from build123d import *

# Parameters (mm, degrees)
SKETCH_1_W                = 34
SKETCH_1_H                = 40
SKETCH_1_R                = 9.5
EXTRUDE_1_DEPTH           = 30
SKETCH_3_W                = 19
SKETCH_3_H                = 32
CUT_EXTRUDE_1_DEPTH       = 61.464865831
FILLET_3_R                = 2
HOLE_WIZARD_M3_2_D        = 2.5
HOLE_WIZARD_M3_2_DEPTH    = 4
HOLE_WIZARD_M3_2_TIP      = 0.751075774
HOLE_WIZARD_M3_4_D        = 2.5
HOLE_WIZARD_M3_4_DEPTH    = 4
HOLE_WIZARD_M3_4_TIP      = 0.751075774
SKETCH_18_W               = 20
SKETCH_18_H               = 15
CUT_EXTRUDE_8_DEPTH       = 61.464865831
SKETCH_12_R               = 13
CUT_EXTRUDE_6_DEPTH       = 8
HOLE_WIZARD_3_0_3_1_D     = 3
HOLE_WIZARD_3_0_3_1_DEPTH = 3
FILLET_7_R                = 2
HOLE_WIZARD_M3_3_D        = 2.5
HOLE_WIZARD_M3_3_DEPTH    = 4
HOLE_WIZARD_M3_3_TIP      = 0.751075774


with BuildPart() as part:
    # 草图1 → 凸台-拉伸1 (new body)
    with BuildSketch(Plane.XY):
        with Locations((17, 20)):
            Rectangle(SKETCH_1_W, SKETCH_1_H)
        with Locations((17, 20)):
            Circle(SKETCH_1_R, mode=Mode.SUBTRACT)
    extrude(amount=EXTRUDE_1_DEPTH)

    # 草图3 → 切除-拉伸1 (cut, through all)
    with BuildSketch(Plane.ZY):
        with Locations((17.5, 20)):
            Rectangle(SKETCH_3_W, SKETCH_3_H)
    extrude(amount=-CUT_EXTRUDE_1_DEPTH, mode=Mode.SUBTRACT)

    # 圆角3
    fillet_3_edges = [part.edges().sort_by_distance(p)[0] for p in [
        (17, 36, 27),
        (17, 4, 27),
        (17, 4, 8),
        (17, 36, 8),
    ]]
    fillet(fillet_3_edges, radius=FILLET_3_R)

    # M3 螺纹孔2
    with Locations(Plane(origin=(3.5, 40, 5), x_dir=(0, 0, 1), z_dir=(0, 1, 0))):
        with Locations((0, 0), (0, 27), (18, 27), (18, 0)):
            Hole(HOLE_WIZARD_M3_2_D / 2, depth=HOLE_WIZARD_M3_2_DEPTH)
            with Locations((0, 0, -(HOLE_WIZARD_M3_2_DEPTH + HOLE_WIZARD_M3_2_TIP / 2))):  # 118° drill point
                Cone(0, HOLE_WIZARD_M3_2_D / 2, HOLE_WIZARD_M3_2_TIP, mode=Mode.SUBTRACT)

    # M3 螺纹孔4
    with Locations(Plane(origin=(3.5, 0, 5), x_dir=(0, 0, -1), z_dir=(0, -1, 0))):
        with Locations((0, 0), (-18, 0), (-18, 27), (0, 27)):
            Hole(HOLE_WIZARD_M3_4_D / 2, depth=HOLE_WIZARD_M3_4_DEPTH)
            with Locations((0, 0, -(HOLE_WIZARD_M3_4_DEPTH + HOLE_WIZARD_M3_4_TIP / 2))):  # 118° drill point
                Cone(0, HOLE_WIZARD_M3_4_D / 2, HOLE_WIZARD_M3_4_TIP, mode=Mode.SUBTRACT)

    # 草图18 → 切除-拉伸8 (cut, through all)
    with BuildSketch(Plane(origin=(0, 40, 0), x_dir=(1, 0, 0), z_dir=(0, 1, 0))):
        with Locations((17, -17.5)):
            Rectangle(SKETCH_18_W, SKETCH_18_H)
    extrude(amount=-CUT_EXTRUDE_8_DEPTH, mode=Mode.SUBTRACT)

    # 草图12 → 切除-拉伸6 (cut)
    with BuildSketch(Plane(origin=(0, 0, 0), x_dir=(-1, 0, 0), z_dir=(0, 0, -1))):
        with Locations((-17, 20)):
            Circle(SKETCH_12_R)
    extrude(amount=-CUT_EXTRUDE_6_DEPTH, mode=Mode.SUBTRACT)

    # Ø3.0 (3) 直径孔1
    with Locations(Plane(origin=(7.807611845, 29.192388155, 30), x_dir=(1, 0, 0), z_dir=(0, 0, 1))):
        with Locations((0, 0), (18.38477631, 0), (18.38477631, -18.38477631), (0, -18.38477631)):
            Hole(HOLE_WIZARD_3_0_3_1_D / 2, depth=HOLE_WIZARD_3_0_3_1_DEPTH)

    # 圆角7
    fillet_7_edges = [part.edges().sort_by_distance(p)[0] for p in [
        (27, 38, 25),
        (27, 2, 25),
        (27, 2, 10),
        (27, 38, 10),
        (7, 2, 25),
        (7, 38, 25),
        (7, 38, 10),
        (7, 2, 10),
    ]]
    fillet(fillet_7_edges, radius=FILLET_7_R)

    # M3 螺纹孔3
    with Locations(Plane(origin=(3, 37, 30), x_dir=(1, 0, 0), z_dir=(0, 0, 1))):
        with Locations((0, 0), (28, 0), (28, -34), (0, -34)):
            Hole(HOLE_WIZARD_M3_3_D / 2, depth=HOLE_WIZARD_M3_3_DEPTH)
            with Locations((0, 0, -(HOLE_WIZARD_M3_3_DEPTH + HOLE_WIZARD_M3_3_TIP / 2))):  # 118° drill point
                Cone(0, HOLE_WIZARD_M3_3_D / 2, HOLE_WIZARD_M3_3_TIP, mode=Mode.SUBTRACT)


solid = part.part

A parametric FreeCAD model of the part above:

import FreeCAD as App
import Part
import Sketcher

V = App.Vector
Q = App.Units.Quantity


def edges_at(feature, points):
    """Names of the edges that pass closest to the given points."""
    edges = feature.Shape.Edges
    near = lambda p: min(range(len(edges)), key=lambda i: edges[i].distToShape(Part.Vertex(*p))[0])
    return sorted({f"Edge{near(p) + 1}" for p in points})

doc = App.newDocument("Part")
body = doc.addObject("PartDesign::Body", "Body")

sketch1 = doc.addObject("Sketcher::SketchObject", "Sketch")
body.addObject(sketch1)
sketch1.AttachmentSupport = (doc.XY_Plane, [""])
sketch1.MapMode = "FlatFace"
sketch1.addGeometry([
    Part.LineSegment(V(0, 40, 0), V(0, 0, 0)),
    Part.LineSegment(V(0, 0, 0), V(34, 0, 0)),
    Part.LineSegment(V(34, 0, 0), V(34, 40, 0)),
    Part.LineSegment(V(34, 40, 0), V(0, 40, 0)),
    Part.Circle(V(17, 20, 0), V(0, 0, 1), 10),
], False)
sketch1.addConstraint([
    Sketcher.Constraint("Coincident", 0, 2, 1, 1),
    Sketcher.Constraint("Coincident", 1, 2, 2, 1),
    Sketcher.Constraint("Coincident", 2, 2, 3, 1),
    Sketcher.Constraint("Coincident", 3, 2, 0, 1),
    Sketcher.Constraint("Vertical", 0),
    Sketcher.Constraint("Horizontal", 1),
    Sketcher.Constraint("Vertical", 2),
    Sketcher.Constraint("Horizontal", 3),
    Sketcher.Constraint("Coincident", 0, 2, -1, 1),
    Sketcher.Constraint("Diameter", 4, Q("19 mm")),
    Sketcher.Constraint("DistanceX", 1, 1, 1, 2, Q("34 mm")),
    Sketcher.Constraint("DistanceY", 0, 2, 0, 1, Q("40 mm")),
    Sketcher.Constraint("DistanceX", -1, 1, 4, 3, Q("17 mm")),
    Sketcher.Constraint("DistanceY", -1, 1, 4, 3, Q("20 mm")),
])
pad1 = doc.addObject("PartDesign::Pad", "Pad")
body.addObject(pad1)
pad1.Profile = sketch1
pad1.Length = 30

sketch2 = doc.addObject("Sketcher::SketchObject", "Sketch001")
body.addObject(sketch2)
sketch2.AttachmentSupport = (doc.YZ_Plane, [""])
sketch2.MapMode = "FlatFace"
sketch2.addGeometry([
    Part.LineSegment(V(36, 8, 0), V(4, 8, 0)),
    Part.LineSegment(V(4, 8, 0), V(4, 27, 0)),
    Part.LineSegment(V(4, 27, 0), V(36, 27, 0)),
    Part.LineSegment(V(36, 27, 0), V(36, 8, 0)),
], False)
sketch2.addConstraint([
    Sketcher.Constraint("Coincident", 0, 2, 1, 1),
    Sketcher.Constraint("Coincident", 1, 2, 2, 1),
    Sketcher.Constraint("Coincident", 2, 2, 3, 1),
    Sketcher.Constraint("Coincident", 3, 2, 0, 1),
    Sketcher.Constraint("Horizontal", 0),
    Sketcher.Constraint("Vertical", 1),
    Sketcher.Constraint("Horizontal", 2),
    Sketcher.Constraint("Vertical", 3),
    Sketcher.Constraint("DistanceX", 0, 2, 0, 1, Q("32 mm")),
    Sketcher.Constraint("DistanceY", 1, 1, 1, 2, Q("19 mm")),
    Sketcher.Constraint("DistanceX", -1, 1, 0, 2, Q("4 mm")),
    Sketcher.Constraint("DistanceY", -1, 1, 0, 2, Q("8 mm")),
])
pocket1 = doc.addObject("PartDesign::Pocket", "Pocket")
body.addObject(pocket1)
pocket1.Profile = sketch2
pocket1.Type = "ThroughAll"
pocket1.Reversed = True
doc.recompute()

fillet = doc.addObject("PartDesign::Fillet", "Fillet")
body.addObject(fillet)
fillet.Base = (pocket1, edges_at(pocket1, [
    (17, 36, 27),
    (17, 4, 27),
    (17, 4, 8),
    (17, 36, 8),
]))
fillet.Radius = 2

sketch3 = doc.addObject("Sketcher::SketchObject", "Sketch002")
body.addObject(sketch3)
sketch3.AttachmentSupport = (doc.XZ_Plane, [""])
sketch3.MapMode = "FlatFace"
sketch3.AttachmentOffset = App.Placement(V(0, 0, -40), App.Rotation())
sketch3.addGeometry([
    Part.Circle(V(3.5, 5, 0), V(0, 0, 1), 1.2),
    Part.Circle(V(30.5, 5, 0), V(0, 0, 1), 1.2),
    Part.Circle(V(30.5, 23, 0), V(0, 0, 1), 1.2),
    Part.Circle(V(3.5, 23, 0), V(0, 0, 1), 1.2),
], False)
sketch3.addConstraint([
    Sketcher.Constraint("Equal", 0, 1),
    Sketcher.Constraint("Equal", 1, 2),
    Sketcher.Constraint("Equal", 2, 3),
    Sketcher.Constraint("Horizontal", 0, 3, 1, 3),
    Sketcher.Constraint("Horizontal", 2, 3, 3, 3),
    Sketcher.Constraint("Vertical", 1, 3, 2, 3),
    Sketcher.Constraint("Vertical", 0, 3, 3, 3),
    Sketcher.Constraint("Diameter", 0, Q("2.5 mm")),
    Sketcher.Constraint("DistanceY", -1, 1, 0, 3, Q("5 mm")),
    Sketcher.Constraint("DistanceY", -1, 1, 2, 3, Q("23 mm")),
    Sketcher.Constraint("DistanceX", 0, 3, 1, 3, Q("27 mm")),
    Sketcher.Constraint("DistanceX", -1, 1, 0, 3, Q("3.5 mm")),
])
doc.recompute()
hole = doc.addObject("PartDesign::Hole", "Hole")
body.addObject(hole)
hole.Profile = sketch3
hole.ThreadType = "None"
hole.Diameter = 2.5
hole.DepthType = "Dimension"
hole.Depth = 4
hole.DrillPoint = "Angled"
hole.DrillPointAngle = 118
hole.Reversed = True

sketch4 = doc.addObject("Sketcher::SketchObject", "Sketch003")
body.addObject(sketch4)
sketch4.AttachmentSupport = (doc.XZ_Plane, [""])
sketch4.MapMode = "FlatFace"
sketch4.addGeometry([
    Part.Circle(V(3.5, 5, 0), V(0, 0, 1), 1.2),
    Part.Circle(V(3.5, 23, 0), V(0, 0, 1), 1.2),
    Part.Circle(V(30.5, 23, 0), V(0, 0, 1), 1.2),
    Part.Circle(V(30.5, 5, 0), V(0, 0, 1), 1.2),
], False)
sketch4.addConstraint([
    Sketcher.Constraint("Equal", 0, 1),
    Sketcher.Constraint("Equal", 1, 2),
    Sketcher.Constraint("Equal", 2, 3),
    Sketcher.Constraint("Horizontal", 1, 3, 2, 3),
    Sketcher.Constraint("Horizontal", 0, 3, 3, 3),
    Sketcher.Constraint("Vertical", 0, 3, 1, 3),
    Sketcher.Constraint("Vertical", 2, 3, 3, 3),
    Sketcher.Constraint("Diameter", 0, Q("2.5 mm")),
    Sketcher.Constraint("DistanceY", -1, 1, 0, 3, Q("5 mm")),
    Sketcher.Constraint("DistanceY", -1, 1, 1, 3, Q("23 mm")),
    Sketcher.Constraint("DistanceX", 1, 3, 2, 3, Q("27 mm")),
    Sketcher.Constraint("DistanceX", -1, 1, 0, 3, Q("3.5 mm")),
])
doc.recompute()
hole2 = doc.addObject("PartDesign::Hole", "Hole001")
body.addObject(hole2)
hole2.Profile = sketch4
hole2.ThreadType = "None"
hole2.Diameter = 2.5
hole2.DepthType = "Dimension"
hole2.Depth = 4
hole2.DrillPoint = "Angled"
hole2.DrillPointAngle = 118

sketch5 = doc.addObject("Sketcher::SketchObject", "Sketch004")
body.addObject(sketch5)
sketch5.AttachmentSupport = (doc.XZ_Plane, [""])
sketch5.MapMode = "FlatFace"
sketch5.AttachmentOffset = App.Placement(V(0, 0, -40), App.Rotation())
sketch5.addGeometry([
    Part.LineSegment(V(7, 10, 0), V(7, 25, 0)),
    Part.LineSegment(V(7, 25, 0), V(27, 25, 0)),
    Part.LineSegment(V(27, 25, 0), V(27, 10, 0)),
    Part.LineSegment(V(27, 10, 0), V(7, 10, 0)),
], False)
sketch5.addConstraint([
    Sketcher.Constraint("Coincident", 0, 2, 1, 1),
    Sketcher.Constraint("Coincident", 1, 2, 2, 1),
    Sketcher.Constraint("Coincident", 2, 2, 3, 1),
    Sketcher.Constraint("Coincident", 3, 2, 0, 1),
    Sketcher.Constraint("Vertical", 0),
    Sketcher.Constraint("Horizontal", 1),
    Sketcher.Constraint("Vertical", 2),
    Sketcher.Constraint("Horizontal", 3),
    Sketcher.Constraint("DistanceX", 1, 1, 1, 2, Q("20 mm")),
    Sketcher.Constraint("DistanceY", 0, 1, 0, 2, Q("15 mm")),
    Sketcher.Constraint("DistanceX", -1, 1, 0, 2, Q("7 mm")),
    Sketcher.Constraint("DistanceY", -1, 1, 0, 2, Q("25 mm")),
])
pocket2 = doc.addObject("PartDesign::Pocket", "Pocket001")
body.addObject(pocket2)
pocket2.Profile = sketch5
pocket2.Type = "ThroughAll"
pocket2.Reversed = True

sketch6 = doc.addObject("Sketcher::SketchObject", "Sketch005")
body.addObject(sketch6)
sketch6.AttachmentSupport = (doc.XY_Plane, [""])
sketch6.MapMode = "FlatFace"
sketch6.addGeometry(Part.Circle(V(17, 20, 0), V(0, 0, 1), 13), False)
sketch6.addConstraint([
    Sketcher.Constraint("Diameter", 0, Q("26 mm")),
    Sketcher.Constraint("DistanceX", -1, 1, 0, 3, Q("17 mm")),
    Sketcher.Constraint("DistanceY", -1, 1, 0, 3, Q("20 mm")),
])
pocket3 = doc.addObject("PartDesign::Pocket", "Pocket002")
body.addObject(pocket3)
pocket3.Profile = sketch6
pocket3.Length = 8
pocket3.Reversed = True

sketch7 = doc.addObject("Sketcher::SketchObject", "Sketch006")
body.addObject(sketch7)
sketch7.AttachmentSupport = (doc.XY_Plane, [""])
sketch7.MapMode = "FlatFace"
sketch7.AttachmentOffset = App.Placement(V(0, 0, 30), App.Rotation())
sketch7.addGeometry([
    Part.Circle(V(7.8, 29.2, 0), V(0, 0, 1), 1.5),
    Part.Circle(V(26.2, 29.2, 0), V(0, 0, 1), 1.5),
    Part.Circle(V(26.2, 10.8, 0), V(0, 0, 1), 1.5),
    Part.Circle(V(7.8, 10.8, 0), V(0, 0, 1), 1.5),
], False)
sketch7.addConstraint([
    Sketcher.Constraint("Equal", 0, 1),
    Sketcher.Constraint("Equal", 1, 2),
    Sketcher.Constraint("Equal", 2, 3),
    Sketcher.Constraint("Horizontal", 0, 3, 1, 3),
    Sketcher.Constraint("Horizontal", 2, 3, 3, 3),
    Sketcher.Constraint("Vertical", 1, 3, 2, 3),
    Sketcher.Constraint("Vertical", 0, 3, 3, 3),
    Sketcher.Constraint("Diameter", 0, Q("3 mm")),
    Sketcher.Constraint("DistanceX", -1, 1, 0, 3, Q("7.807612 mm")),
    Sketcher.Constraint("DistanceY", -1, 1, 0, 3, Q("29.192388 mm")),
    Sketcher.Constraint("DistanceX", -1, 1, 1, 3, Q("26.192388 mm")),
    Sketcher.Constraint("DistanceY", -1, 1, 2, 3, Q("10.807612 mm")),
])
doc.recompute()
hole3 = doc.addObject("PartDesign::Hole", "Hole002")
body.addObject(hole3)
hole3.Profile = sketch7
hole3.ThreadType = "None"
hole3.Diameter = 3
hole3.DepthType = "Dimension"
hole3.Depth = 3
hole3.DrillPoint = "Flat"
doc.recompute()

fillet2 = doc.addObject("PartDesign::Fillet", "Fillet001")
body.addObject(fillet2)
fillet2.Base = (hole3, edges_at(hole3, [
    (27, 38, 25),
    (27, 2, 25),
    (27, 2, 10),
    (27, 38, 10),
    (7, 2, 25),
    (7, 38, 25),
    (7, 38, 10),
    (7, 2, 10),
]))
fillet2.Radius = 2

sketch8 = doc.addObject("Sketcher::SketchObject", "Sketch007")
body.addObject(sketch8)
sketch8.AttachmentSupport = (doc.XY_Plane, [""])
sketch8.MapMode = "FlatFace"
sketch8.AttachmentOffset = App.Placement(V(0, 0, 30), App.Rotation())
sketch8.addGeometry([
    Part.Circle(V(3, 37, 0), V(0, 0, 1), 1.2),
    Part.Circle(V(31, 37, 0), V(0, 0, 1), 1.2),
    Part.Circle(V(31, 3, 0), V(0, 0, 1), 1.2),
    Part.Circle(V(3, 3, 0), V(0, 0, 1), 1.2),
], False)
sketch8.addConstraint([
    Sketcher.Constraint("Equal", 0, 1),
    Sketcher.Constraint("Equal", 1, 2),
    Sketcher.Constraint("Equal", 2, 3),
    Sketcher.Constraint("Horizontal", 0, 3, 1, 3),
    Sketcher.Constraint("Horizontal", 2, 3, 3, 3),
    Sketcher.Constraint("Vertical", 1, 3, 2, 3),
    Sketcher.Constraint("Vertical", 0, 3, 3, 3),
    Sketcher.Constraint("Diameter", 0, Q("2.5 mm")),
    Sketcher.Constraint("DistanceX", -1, 1, 0, 3, Q("3 mm")),
    Sketcher.Constraint("DistanceY", -1, 1, 0, 3, Q("37 mm")),
    Sketcher.Constraint("DistanceX", -1, 1, 1, 3, Q("31 mm")),
    Sketcher.Constraint("DistanceY", -1, 1, 2, 3, Q("3 mm")),
])
doc.recompute()
hole4 = doc.addObject("PartDesign::Hole", "Hole003")
body.addObject(hole4)
hole4.Profile = sketch8
hole4.ThreadType = "None"
hole4.Diameter = 2.5
hole4.DepthType = "Dimension"
hole4.Depth = 4
hole4.DrillPoint = "Angled"
hole4.DrillPointAngle = 118

doc.recompute()
